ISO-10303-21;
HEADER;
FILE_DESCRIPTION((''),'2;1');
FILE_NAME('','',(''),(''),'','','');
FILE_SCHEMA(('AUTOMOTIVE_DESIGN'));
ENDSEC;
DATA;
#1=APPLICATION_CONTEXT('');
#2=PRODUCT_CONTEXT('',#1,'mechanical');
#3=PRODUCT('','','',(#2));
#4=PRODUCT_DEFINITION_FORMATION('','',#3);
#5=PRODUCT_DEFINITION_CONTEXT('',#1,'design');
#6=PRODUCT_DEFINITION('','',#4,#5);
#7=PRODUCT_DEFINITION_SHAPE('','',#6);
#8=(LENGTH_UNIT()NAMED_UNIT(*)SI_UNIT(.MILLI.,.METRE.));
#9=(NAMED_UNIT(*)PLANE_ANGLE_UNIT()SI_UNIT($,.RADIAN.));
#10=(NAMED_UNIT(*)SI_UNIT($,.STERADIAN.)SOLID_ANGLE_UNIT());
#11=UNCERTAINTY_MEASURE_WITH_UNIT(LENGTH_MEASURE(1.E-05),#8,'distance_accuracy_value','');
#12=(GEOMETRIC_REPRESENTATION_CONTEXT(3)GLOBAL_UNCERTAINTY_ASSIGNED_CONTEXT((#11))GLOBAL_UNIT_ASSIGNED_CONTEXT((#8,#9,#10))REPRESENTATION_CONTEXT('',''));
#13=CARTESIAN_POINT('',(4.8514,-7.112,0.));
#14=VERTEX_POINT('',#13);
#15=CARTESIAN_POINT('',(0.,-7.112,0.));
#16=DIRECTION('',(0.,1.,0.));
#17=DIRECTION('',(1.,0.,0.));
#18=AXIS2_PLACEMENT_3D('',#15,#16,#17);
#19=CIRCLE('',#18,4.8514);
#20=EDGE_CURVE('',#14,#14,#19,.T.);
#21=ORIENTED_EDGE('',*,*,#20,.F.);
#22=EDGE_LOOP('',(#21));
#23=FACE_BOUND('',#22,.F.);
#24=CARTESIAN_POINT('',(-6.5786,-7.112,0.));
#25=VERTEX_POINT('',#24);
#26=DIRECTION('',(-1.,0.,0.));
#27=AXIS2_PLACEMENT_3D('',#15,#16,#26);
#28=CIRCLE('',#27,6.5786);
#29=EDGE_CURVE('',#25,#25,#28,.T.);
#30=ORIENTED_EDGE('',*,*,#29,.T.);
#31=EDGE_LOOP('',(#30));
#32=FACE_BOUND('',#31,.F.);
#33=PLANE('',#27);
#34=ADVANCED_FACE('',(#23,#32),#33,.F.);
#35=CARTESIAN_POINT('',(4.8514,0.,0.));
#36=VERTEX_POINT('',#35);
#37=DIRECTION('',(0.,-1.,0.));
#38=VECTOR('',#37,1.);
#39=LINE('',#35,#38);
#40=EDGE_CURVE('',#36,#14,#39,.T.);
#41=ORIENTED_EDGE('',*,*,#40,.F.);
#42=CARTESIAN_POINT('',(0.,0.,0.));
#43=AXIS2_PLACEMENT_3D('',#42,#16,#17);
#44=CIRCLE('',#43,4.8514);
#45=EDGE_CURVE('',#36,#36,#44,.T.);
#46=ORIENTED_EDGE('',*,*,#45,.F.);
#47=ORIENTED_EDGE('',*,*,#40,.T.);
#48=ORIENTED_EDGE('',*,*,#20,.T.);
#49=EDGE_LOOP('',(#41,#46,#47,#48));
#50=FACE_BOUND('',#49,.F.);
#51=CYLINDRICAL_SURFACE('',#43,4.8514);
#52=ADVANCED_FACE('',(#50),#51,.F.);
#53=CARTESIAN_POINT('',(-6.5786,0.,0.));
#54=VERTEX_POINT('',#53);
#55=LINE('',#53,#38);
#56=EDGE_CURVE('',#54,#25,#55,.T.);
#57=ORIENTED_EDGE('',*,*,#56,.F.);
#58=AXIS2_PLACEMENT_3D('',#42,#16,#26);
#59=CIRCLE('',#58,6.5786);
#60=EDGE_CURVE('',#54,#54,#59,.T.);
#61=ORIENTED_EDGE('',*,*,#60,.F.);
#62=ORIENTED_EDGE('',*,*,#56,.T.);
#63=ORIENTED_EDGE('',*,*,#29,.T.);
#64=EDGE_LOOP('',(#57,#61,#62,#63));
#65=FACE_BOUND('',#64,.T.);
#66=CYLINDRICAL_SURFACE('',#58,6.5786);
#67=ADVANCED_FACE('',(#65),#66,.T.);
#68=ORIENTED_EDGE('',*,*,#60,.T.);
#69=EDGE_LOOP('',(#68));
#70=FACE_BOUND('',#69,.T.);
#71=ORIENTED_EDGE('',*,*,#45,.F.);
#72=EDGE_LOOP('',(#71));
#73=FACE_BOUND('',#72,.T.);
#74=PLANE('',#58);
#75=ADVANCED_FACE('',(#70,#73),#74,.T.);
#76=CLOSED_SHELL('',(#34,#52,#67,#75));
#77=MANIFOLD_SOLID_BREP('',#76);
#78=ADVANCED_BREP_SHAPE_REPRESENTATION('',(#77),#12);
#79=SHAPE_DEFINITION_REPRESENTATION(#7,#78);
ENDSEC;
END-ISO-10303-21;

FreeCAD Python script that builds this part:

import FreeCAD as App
import Part
import Sketcher
Q = App.Units.Quantity

doc = App.newDocument("Part")
body = doc.addObject("PartDesign::Body", "Body")

sketch1 = body.newObject("Sketcher::SketchObject", "Sketch")
sketch1.AttachmentSupport = (doc.getObject("XZ_Plane"), [""])
sketch1.MapMode = "FlatFace"
sketch1.addGeometry(Part.Circle(App.Vector(0, 0, 0), App.Vector(0, 0, 1), 6.5786), False)
sketch1.addConstraint([
    Sketcher.Constraint("Coincident", 0, 3, -1, 1),
    Sketcher.Constraint("Diameter", 0, Q("0.518 in")),
])
pad1 = body.newObject("PartDesign::Pad", "Pad")
pad1.Profile = sketch1
pad1.Length = Q("0.28 in")

sketch2 = body.newObject("Sketcher::SketchObject", "Sketch001")
sketch2.AttachmentSupport = (doc.getObject("XZ_Plane"), [""])
sketch2.MapMode = "FlatFace"
sketch2.addGeometry(Part.Circle(App.Vector(0, 0, 0), App.Vector(0, 0, 1), 4.8514), False)
sketch2.addConstraint([
    Sketcher.Constraint("Coincident", 0, 3, -1, 1),
    Sketcher.Constraint("Diameter", 0, Q("0.382 in")),
])
pocket1 = body.newObject("PartDesign::Pocket", "Pocket")
pocket1.Profile = sketch2
pocket1.Type = "UpToFirst"
pocket1.Reversed = True

doc.recompute()
